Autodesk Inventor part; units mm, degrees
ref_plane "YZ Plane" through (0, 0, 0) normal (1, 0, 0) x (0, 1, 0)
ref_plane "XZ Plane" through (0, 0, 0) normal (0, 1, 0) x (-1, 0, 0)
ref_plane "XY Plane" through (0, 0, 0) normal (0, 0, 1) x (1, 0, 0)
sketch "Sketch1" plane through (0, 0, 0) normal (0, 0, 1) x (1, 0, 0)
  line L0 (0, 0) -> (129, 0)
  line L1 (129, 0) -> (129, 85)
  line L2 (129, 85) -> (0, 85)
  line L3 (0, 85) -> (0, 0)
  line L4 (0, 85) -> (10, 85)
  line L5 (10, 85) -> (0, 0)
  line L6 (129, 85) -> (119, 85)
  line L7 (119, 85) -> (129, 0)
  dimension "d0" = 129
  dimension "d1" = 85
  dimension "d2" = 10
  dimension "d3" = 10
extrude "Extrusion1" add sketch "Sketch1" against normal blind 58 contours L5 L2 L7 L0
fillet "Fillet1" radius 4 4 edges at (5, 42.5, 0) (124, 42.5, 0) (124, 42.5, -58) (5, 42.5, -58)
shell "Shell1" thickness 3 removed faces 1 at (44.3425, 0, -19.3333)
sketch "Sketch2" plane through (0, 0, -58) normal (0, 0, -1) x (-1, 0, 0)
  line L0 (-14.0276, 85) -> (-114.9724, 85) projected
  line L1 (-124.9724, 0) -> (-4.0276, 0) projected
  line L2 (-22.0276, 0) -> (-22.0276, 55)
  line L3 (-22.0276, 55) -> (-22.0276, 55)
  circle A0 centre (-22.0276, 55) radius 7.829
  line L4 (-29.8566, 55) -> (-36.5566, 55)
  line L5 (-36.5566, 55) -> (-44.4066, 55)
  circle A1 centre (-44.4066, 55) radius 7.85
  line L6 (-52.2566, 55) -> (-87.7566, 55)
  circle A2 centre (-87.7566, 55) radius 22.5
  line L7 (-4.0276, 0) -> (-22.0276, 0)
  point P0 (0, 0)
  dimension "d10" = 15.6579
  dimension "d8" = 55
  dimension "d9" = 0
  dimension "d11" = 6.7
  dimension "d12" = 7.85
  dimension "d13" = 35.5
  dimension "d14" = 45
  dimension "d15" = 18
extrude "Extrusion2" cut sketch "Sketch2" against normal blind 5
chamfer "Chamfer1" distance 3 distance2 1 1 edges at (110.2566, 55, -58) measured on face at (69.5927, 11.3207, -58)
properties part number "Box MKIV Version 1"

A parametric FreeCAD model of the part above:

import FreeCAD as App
import Part
import Sketcher


def edges_at(feature, points):
    """Names of the edges that pass closest to the given points."""
    edges = feature.Shape.Edges
    near = lambda p: min(range(len(edges)), key=lambda i: edges[i].distToShape(Part.Vertex(*p))[0])
    return sorted({f"Edge{near(p) + 1}" for p in points})


def faces_at(feature, points):
    """Names of the faces that lie closest to the given points."""
    faces = feature.Shape.Faces
    near = lambda p: min(range(len(faces)), key=lambda i: faces[i].distToShape(Part.Vertex(*p))[0])
    return sorted({f"Face{near(p) + 1}" for p in points})

doc = App.newDocument("Part")
body = doc.addObject("PartDesign::Body", "Body")

# Sketch on XY plane
sketch1 = body.newObject("Sketcher::SketchObject", "Sketch")
sketch1.AttachmentSupport = (doc.getObject("XY_Plane"), [""])
sketch1.MapMode = "FlatFace"
sketch1.addGeometry([
    Part.LineSegment(App.Vector(10, 85, 0), App.Vector(0, 0, 0)),
    Part.LineSegment(App.Vector(0, 0, 0), App.Vector(129, 0, 0)),
    Part.LineSegment(App.Vector(129, 0, 0), App.Vector(119, 85, 0)),
    Part.LineSegment(App.Vector(119, 85, 0), App.Vector(10, 85, 0)),
], False)
sketch1.addConstraint([
    Sketcher.Constraint("Coincident", 0, 2, 1, 1),
    Sketcher.Constraint("Coincident", 1, 2, 2, 1),
    Sketcher.Constraint("Coincident", 2, 2, 3, 1),
    Sketcher.Constraint("Coincident", 3, 2, 0, 1),
    Sketcher.Constraint("Horizontal", 1),
    Sketcher.Constraint("Horizontal", 3),
    Sketcher.Constraint("Coincident", 0, 2, -1, 1),
    Sketcher.Constraint("Equal", 0, 2),
    Sketcher.Constraint("DistanceX", 1, 1, 1, 2, 129.0),
    Sketcher.Constraint("DistanceY", -1, 1, 2, 2, 85.0),
    Sketcher.Constraint("DistanceX", -1, 1, 3, 2, 10.0),
])
pad1 = body.newObject("PartDesign::Pad", "Pad")
pad1.Profile = sketch1
pad1.Length = 58
pad1.Reversed = True
doc.recompute()

fillet = body.newObject("PartDesign::Fillet", "Fillet")
fillet.Base = (pad1, edges_at(pad1, [
    (5, 42.5, 0),
    (124, 42.5, 0),
    (124, 42.5, -58),
    (5, 42.5, -58),
]))
fillet.Radius = 4
doc.recompute()

thickness = body.newObject("PartDesign::Thickness", "Thickness")
thickness.Base = (fillet, faces_at(fillet, [(44.343, 0, -19.333)]))
thickness.Value = 3
thickness.Reversed = True
thickness.Join = "Intersection"

# Sketch on XY plane
sketch2 = body.newObject("Sketcher::SketchObject", "Sketch001")
sketch2.AttachmentSupport = (doc.getObject("XY_Plane"), [""])
sketch2.MapMode = "FlatFace"
sketch2.AttachmentOffset = App.Placement(App.Vector(0, 0, -58), App.Rotation())
sketch2.addGeometry([
    Part.Circle(App.Vector(22, 55, 0), App.Vector(0, 0, 1), 8),
    Part.Circle(App.Vector(88, 55, 0), App.Vector(0, 0, 1), 22),
    Part.Circle(App.Vector(44, 55, 0), App.Vector(0, 0, 1), 8),
], False)
sketch2.addConstraint([
    Sketcher.Constraint("Horizontal", 0, 3, 1, 3),
    Sketcher.Constraint("Horizontal", 1, 3, 2, 3),
    Sketcher.Constraint("Diameter", 1, 45.0),
    Sketcher.Constraint("Diameter", 2, 15.7),
    Sketcher.Constraint("Diameter", 0, 15.658),
    Sketcher.Constraint("DistanceY", -1, 1, 0, 3, 55.0),
    Sketcher.Constraint("DistanceX", 2, 3, 1, 3, 43.35),
    Sketcher.Constraint("DistanceX", 0, 3, 1, 3, 65.729),
    Sketcher.Constraint("DistanceX", -1, 1, 0, 3, 22.0276),
])
pocket1 = body.newObject("PartDesign::Pocket", "Pocket")
pocket1.Profile = sketch2
pocket1.Length = 5
pocket1.Reversed = True
doc.recompute()

chamfer = body.newObject("PartDesign::Chamfer", "Chamfer")
chamfer.Base = (pocket1, edges_at(pocket1, [(110.257, 55, -58)]))
chamfer.ChamferType = "Two distances"
chamfer.Size = 3
chamfer.Size2 = 1

doc.recompute()
